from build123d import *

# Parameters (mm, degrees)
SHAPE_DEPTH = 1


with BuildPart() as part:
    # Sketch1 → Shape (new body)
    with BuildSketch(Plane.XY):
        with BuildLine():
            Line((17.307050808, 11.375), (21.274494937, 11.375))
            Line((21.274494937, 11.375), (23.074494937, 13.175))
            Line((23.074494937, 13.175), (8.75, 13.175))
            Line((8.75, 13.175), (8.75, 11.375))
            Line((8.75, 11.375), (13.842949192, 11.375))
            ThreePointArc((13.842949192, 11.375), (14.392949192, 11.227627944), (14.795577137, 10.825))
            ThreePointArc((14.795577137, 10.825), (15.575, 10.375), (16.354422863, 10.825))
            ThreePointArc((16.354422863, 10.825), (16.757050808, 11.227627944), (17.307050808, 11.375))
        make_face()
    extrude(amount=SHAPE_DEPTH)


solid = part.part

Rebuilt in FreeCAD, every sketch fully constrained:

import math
import FreeCAD as App
import Part
import Sketcher

V = App.Vector
Q = App.Units.Quantity

doc = App.newDocument("Part")
params = doc.addObject("Spreadsheet::Sheet", "Params")
for row, (alias, value) in enumerate([
    ("sketch1_radius", "1.1 mm"),
    ("sketch1_radius2", "0.9 mm"),
    ("sketch1_height", "1.8 mm"),
    ("pad1_length", "1 mm"),
], start=1):
    params.set(f"A{row}", alias)
    params.set(f"B{row}", "=" + value)
    params.setAlias(f"B{row}", alias)

body = doc.addObject("PartDesign::Body", "Body")

# Sketch on XY plane
sketch1 = doc.addObject("Sketcher::SketchObject", "Sketch")
body.addObject(sketch1)
sketch1.AttachmentSupport = (doc.XY_Plane, [""])
sketch1.MapMode = "FlatFace"
sketch1.addGeometry(Part.LineSegment(V(17.3, 11.4, 0), V(21.3, 11.4, 0)), False)
sketch1.addGeometry(Part.LineSegment(V(21.3, 11.4, 0), V(23.1, 13.2, 0)), False)
sketch1.addGeometry(Part.LineSegment(V(23.1, 13.2, 0), V(8.8, 13.2, 0)), False)
sketch1.addGeometry(Part.LineSegment(V(8.8, 13.2, 0), V(8.8, 11.4, 0)), False)
sketch1.addGeometry(Part.LineSegment(V(8.8, 11.4, 0), V(13.8, 11.4, 0)), False)
sketch1.addGeometry(Part.ArcOfCircle(Part.Circle(V(13.8, 10.3, 0), V(0, 0, 1), 1.1), math.radians(30), math.radians(90)), False)
sketch1.addGeometry(Part.ArcOfCircle(Part.Circle(V(15.6, 11.3, 0), V(0, 0, 1), 0.9), math.radians(-150), math.radians(-30)), False)
sketch1.addGeometry(Part.ArcOfCircle(Part.Circle(V(17.3, 10.3, 0), V(0, 0, 1), 1.1), math.radians(90), math.radians(150)), False)
sketch1.addConstraint(Sketcher.Constraint("Coincident", 0, 2, 1, 1))
sketch1.addConstraint(Sketcher.Constraint("Coincident", 1, 2, 2, 1))
sketch1.addConstraint(Sketcher.Constraint("Coincident", 2, 2, 3, 1))
sketch1.addConstraint(Sketcher.Constraint("Coincident", 3, 2, 4, 1))
sketch1.addConstraint(Sketcher.Constraint("Tangent", 4, 2, 5, 2))
sketch1.addConstraint(Sketcher.Constraint("Tangent", 5, 1, 6, 1))
sketch1.addConstraint(Sketcher.Constraint("Tangent", 6, 2, 7, 2))
sketch1.addConstraint(Sketcher.Constraint("Tangent", 7, 1, 0, 1))
sketch1.addConstraint(Sketcher.Constraint("Horizontal", 0))
sketch1.addConstraint(Sketcher.Constraint("Horizontal", 2))
sketch1.addConstraint(Sketcher.Constraint("Vertical", 3))
sketch1.addConstraint(Sketcher.Constraint("Horizontal", 4))
sketch1.addConstraint(Sketcher.Constraint("Equal", 5, 7))
sketch1.addConstraint(Sketcher.Constraint("Horizontal", 5, 3, 7, 3))
sketch1.addConstraint(Sketcher.Constraint("Radius", 5, 1.1))
sketch1.addConstraint(Sketcher.Constraint("Radius", 6, 0.9))
sketch1.addConstraint(Sketcher.Constraint("Angle", 1, Q("45 deg")))
sketch1.addConstraint(Sketcher.Constraint("DistanceY", 3, 2, 3, 1, 1.8))
sketch1.addConstraint(Sketcher.Constraint("DistanceY", 5, 3, 6, 3, 1.0))
sketch1.addConstraint(Sketcher.Constraint("DistanceX", -1, 1, 2, 2, 8.75))
sketch1.addConstraint(Sketcher.Constraint("DistanceY", -1, 1, 5, 3, 10.275))
sketch1.addConstraint(Sketcher.Constraint("DistanceX", -1, 1, 6, 3, 15.575))
sketch1.addConstraint(Sketcher.Constraint("DistanceX", 0, 1, 0, 2, 3.967444))
sketch1.setExpression("Constraints[14]", "Params.sketch1_radius")
sketch1.setExpression("Constraints[15]", "Params.sketch1_radius2")
sketch1.setExpression("Constraints[17]", "Params.sketch1_height")
pad1 = doc.addObject("PartDesign::Pad", "Pad")
body.addObject(pad1)
pad1.Profile = sketch1
pad1.setExpression("Length", "Params.pad1_length")

doc.recompute()
